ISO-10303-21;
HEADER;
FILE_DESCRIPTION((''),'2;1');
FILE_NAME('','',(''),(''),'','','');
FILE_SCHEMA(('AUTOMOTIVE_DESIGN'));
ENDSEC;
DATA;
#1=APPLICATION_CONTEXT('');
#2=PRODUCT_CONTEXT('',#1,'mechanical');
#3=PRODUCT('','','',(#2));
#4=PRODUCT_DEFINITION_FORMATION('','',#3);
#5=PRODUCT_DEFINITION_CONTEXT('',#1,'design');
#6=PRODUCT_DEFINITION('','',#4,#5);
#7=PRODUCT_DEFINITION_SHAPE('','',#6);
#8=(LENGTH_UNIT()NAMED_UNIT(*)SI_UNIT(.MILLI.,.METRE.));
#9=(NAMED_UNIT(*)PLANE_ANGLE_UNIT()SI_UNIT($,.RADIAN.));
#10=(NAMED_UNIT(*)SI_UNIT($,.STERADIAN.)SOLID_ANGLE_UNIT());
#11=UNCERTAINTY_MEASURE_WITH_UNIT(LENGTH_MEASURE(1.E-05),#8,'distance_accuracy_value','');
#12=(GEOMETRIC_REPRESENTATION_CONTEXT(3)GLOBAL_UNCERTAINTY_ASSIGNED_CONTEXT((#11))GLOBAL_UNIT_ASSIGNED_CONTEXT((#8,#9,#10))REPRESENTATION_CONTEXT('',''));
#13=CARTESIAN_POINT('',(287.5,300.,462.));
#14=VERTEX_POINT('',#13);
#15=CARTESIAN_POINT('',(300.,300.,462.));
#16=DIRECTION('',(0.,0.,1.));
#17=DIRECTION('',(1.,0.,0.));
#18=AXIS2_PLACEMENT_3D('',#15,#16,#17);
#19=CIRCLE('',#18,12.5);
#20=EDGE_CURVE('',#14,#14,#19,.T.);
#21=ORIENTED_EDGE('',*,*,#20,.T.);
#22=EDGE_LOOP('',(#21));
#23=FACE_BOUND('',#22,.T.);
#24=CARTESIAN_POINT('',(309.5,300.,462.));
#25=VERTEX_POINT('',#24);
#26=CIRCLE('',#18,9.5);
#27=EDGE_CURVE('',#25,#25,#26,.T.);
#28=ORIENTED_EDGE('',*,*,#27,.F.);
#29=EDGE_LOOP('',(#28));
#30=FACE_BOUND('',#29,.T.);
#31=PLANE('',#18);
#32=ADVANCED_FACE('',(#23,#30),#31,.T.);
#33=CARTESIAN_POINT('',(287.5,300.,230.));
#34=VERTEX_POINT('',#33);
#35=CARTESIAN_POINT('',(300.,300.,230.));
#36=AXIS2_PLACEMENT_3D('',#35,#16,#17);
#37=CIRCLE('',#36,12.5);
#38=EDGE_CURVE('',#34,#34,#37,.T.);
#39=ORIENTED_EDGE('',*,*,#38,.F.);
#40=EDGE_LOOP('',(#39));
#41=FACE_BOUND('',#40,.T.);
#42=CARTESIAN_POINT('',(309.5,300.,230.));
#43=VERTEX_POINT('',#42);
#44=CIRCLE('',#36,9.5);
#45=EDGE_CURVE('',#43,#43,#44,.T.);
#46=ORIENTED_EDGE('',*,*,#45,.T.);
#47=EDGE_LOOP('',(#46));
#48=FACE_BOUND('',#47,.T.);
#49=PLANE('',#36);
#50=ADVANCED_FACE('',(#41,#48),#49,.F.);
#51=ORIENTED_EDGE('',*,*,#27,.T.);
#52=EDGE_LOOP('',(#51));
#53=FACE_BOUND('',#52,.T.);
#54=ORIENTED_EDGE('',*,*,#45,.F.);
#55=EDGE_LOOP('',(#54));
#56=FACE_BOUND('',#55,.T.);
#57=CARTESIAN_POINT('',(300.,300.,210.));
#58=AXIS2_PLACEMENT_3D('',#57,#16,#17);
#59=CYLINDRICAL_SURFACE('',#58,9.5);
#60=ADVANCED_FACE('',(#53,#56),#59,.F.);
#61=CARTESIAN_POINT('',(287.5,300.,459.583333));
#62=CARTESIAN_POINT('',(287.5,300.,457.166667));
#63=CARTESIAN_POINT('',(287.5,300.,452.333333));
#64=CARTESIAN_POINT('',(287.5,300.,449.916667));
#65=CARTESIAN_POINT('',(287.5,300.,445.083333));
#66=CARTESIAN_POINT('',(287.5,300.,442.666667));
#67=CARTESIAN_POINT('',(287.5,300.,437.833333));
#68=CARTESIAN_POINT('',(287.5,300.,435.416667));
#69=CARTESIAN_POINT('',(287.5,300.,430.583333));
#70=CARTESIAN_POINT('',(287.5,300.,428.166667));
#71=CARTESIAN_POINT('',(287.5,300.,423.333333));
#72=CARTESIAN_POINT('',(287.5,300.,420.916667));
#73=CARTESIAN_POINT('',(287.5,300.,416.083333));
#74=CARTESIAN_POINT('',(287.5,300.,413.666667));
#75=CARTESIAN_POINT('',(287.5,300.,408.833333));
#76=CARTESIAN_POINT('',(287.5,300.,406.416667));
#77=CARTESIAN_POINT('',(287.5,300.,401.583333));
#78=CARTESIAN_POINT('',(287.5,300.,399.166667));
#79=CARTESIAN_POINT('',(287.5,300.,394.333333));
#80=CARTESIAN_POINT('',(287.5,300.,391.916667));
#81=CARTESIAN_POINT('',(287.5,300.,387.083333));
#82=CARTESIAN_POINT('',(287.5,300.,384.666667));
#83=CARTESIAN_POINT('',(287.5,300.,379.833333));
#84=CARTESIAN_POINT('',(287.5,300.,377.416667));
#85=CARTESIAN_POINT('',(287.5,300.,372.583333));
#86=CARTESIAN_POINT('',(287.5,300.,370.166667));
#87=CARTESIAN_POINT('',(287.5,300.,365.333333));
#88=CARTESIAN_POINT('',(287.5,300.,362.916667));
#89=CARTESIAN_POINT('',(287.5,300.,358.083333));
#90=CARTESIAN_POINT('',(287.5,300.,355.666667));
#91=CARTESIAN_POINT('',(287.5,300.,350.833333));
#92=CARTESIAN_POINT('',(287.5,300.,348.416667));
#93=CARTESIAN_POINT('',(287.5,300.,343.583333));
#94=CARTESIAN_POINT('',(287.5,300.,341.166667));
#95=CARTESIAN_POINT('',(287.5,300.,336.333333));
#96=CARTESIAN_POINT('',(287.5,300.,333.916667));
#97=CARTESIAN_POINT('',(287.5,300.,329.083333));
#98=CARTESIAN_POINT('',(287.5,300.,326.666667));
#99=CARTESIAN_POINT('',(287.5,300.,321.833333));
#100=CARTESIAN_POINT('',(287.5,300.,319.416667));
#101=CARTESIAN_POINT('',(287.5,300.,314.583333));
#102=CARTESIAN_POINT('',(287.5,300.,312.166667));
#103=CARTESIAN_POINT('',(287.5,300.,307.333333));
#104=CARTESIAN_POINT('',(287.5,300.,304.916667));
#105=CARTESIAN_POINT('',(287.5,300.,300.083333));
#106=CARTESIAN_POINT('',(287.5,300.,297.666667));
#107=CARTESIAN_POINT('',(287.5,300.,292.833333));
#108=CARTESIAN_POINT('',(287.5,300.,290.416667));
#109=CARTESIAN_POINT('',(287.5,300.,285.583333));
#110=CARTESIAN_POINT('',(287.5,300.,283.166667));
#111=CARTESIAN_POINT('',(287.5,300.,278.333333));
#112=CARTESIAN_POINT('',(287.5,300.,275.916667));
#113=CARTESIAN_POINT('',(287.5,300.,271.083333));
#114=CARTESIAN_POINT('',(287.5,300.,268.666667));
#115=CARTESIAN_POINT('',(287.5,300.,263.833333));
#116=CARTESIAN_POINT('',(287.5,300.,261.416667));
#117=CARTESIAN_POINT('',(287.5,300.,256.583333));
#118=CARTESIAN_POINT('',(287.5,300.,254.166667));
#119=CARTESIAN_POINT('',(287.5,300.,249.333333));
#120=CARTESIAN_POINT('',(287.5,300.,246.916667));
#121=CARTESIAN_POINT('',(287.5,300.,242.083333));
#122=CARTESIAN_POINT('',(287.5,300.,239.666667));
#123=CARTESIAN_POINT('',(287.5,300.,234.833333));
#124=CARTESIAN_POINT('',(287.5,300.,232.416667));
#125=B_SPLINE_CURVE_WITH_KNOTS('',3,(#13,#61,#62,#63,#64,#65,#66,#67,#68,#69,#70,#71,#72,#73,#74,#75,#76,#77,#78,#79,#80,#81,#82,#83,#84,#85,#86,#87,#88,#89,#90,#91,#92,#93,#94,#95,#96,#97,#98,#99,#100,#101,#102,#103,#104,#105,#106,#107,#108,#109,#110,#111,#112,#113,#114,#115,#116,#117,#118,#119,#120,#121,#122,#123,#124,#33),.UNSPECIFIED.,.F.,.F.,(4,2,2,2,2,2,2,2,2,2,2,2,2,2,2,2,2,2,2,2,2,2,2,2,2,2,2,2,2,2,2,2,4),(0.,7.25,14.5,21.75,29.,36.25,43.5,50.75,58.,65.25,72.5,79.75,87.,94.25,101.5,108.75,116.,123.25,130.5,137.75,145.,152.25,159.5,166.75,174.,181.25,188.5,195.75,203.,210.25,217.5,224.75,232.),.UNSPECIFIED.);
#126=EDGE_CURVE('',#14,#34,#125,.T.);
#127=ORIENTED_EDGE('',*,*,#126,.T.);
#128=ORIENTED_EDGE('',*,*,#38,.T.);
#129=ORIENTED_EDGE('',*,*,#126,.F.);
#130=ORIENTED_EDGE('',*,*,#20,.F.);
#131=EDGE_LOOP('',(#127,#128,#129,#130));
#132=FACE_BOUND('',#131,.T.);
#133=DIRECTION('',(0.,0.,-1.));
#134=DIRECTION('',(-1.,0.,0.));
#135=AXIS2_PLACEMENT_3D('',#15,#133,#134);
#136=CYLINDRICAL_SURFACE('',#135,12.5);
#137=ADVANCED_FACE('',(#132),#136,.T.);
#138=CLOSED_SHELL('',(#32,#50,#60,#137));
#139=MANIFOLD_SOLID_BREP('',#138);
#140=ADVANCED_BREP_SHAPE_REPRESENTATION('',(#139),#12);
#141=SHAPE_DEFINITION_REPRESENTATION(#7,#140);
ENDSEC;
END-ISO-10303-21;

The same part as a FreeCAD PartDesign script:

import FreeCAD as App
import Part
import Sketcher

V = App.Vector
Q = App.Units.Quantity

doc = App.newDocument("Part")
body = doc.addObject("PartDesign::Body", "Body")

# Sketch on XY plane
sketch1 = body.newObject("Sketcher::SketchObject", "Sketch")
sketch1.AttachmentSupport = (doc.getObject("XY_Plane"), [""])
sketch1.MapMode = "FlatFace"
sketch1.AttachmentOffset = App.Placement(V(0, 0, 230), App.Rotation())
sketch1.addGeometry(Part.Circle(V(300, 300, 0), V(0, 0, 1), 12), False)
sketch1.addConstraint([
    Sketcher.Constraint("Diameter", 0, Q("25 mm")),
    Sketcher.Constraint("DistanceX", -1, 1, 0, 3, Q("300 mm")),
    Sketcher.Constraint("DistanceY", -1, 1, 0, 3, Q("300 mm")),
])
pad1 = body.newObject("PartDesign::Pad", "Pad")
pad1.Profile = sketch1
pad1.Length = 232

# Sketch on XY plane
sketch2 = body.newObject("Sketcher::SketchObject", "Sketch001")
sketch2.AttachmentSupport = (doc.getObject("XY_Plane"), [""])
sketch2.MapMode = "FlatFace"
sketch2.AttachmentOffset = App.Placement(V(0, 0, 462), App.Rotation())
sketch2.addGeometry(Part.Circle(V(300, 300, 0), V(0, 0, 1), 10), False)
sketch2.addConstraint([
    Sketcher.Constraint("Diameter", 0, Q("19 mm")),
    Sketcher.Constraint("DistanceX", -1, 1, 0, 3, Q("300 mm")),
    Sketcher.Constraint("DistanceY", -1, 1, 0, 3, Q("300 mm")),
])
pocket1 = body.newObject("PartDesign::Pocket", "Pocket")
pocket1.Profile = sketch2
pocket1.Length = 252

doc.recompute()
